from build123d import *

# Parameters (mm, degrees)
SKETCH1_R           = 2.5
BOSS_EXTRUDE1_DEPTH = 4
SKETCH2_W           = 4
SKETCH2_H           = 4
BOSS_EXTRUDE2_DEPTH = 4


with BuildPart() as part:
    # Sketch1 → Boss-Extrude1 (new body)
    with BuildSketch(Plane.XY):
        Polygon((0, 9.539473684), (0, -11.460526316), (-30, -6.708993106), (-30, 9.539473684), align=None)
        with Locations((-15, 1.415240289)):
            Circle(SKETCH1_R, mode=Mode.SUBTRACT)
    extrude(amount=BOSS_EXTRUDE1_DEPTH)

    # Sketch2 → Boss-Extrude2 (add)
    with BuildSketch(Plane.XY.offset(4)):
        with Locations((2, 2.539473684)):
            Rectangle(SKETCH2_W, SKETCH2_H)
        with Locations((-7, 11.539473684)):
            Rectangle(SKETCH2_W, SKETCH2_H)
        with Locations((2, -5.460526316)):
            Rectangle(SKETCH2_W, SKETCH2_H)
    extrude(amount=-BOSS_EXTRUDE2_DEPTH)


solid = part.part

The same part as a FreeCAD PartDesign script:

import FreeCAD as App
import Part
import Sketcher
from FreeCAD import Vector
Q = App.Units.Quantity

doc = App.newDocument("Part")
body = doc.addObject("PartDesign::Body", "Body")

sketch1 = body.newObject("Sketcher::SketchObject", "Sketch")
sketch1.AttachmentSupport = (doc.getObject("XY_Plane"), [""])
sketch1.MapMode = "FlatFace"
sketch1.addGeometry([
    Part.LineSegment(Vector(0, -11.5, 0), Vector(0, 9.5, 0)),
    Part.LineSegment(Vector(0, 9.5, 0), Vector(-30, 9.5, 0)),
    Part.LineSegment(Vector(-30, 9.5, 0), Vector(-30, -6.7, 0)),
    Part.LineSegment(Vector(-30, -6.7, 0), Vector(0, -11.5, 0)),
    Part.Circle(Vector(-15, 1.4, 0), Vector(0, 0, 1), 2.5),
], False)
sketch1.addConstraint([
    Sketcher.Constraint("Coincident", 0, 2, 1, 1),
    Sketcher.Constraint("Coincident", 1, 2, 2, 1),
    Sketcher.Constraint("Coincident", 2, 2, 3, 1),
    Sketcher.Constraint("Coincident", 3, 2, 0, 1),
    Sketcher.Constraint("Vertical", 0),
    Sketcher.Constraint("Horizontal", 1),
    Sketcher.Constraint("Vertical", 2),
    Sketcher.Constraint("PointOnObject", 0, 2, -2),
    Sketcher.Constraint("Diameter", 4, 5.0),
    Sketcher.Constraint("DistanceX", 1, 2, 1, 1, 30.0),
    Sketcher.Constraint("DistanceY", 0, 1, 0, 2, 21.0),
    Sketcher.Constraint("Angle", 3, Q("-9 deg")),
    Sketcher.Constraint("DistanceX", 4, 3, -1, 1, 15.0),
    Sketcher.Constraint("DistanceY", -1, 1, 4, 3, 1.41524),
    Sketcher.Constraint("DistanceY", -1, 1, 0, 2, 9.539474),
])
pad1 = body.newObject("PartDesign::Pad", "Pad")
pad1.Profile = sketch1
pad1.Length = 4

sketch2 = body.newObject("Sketcher::SketchObject", "Sketch001")
sketch2.AttachmentSupport = (doc.getObject("XY_Plane"), [""])
sketch2.MapMode = "FlatFace"
sketch2.AttachmentOffset = App.Placement(Vector(0, 0, 4), App.Rotation())
sketch2.addGeometry([
    Part.LineSegment(Vector(0, 4.5, 0), Vector(0, 0.5, 0)),
    Part.LineSegment(Vector(0, 0.5, 0), Vector(4, 0.5, 0)),
    Part.LineSegment(Vector(4, 0.5, 0), Vector(4, 4.5, 0)),
    Part.LineSegment(Vector(4, 4.5, 0), Vector(0, 4.5, 0)),
    Part.LineSegment(Vector(-9, 13.5, 0), Vector(-9, 9.5, 0)),
    Part.LineSegment(Vector(-9, 9.5, 0), Vector(-5, 9.5, 0)),
    Part.LineSegment(Vector(-5, 9.5, 0), Vector(-5, 13.5, 0)),
    Part.LineSegment(Vector(-5, 13.5, 0), Vector(-9, 13.5, 0)),
    Part.LineSegment(Vector(0, -3.5, 0), Vector(0, -7.5, 0)),
    Part.LineSegment(Vector(0, -7.5, 0), Vector(4, -7.5, 0)),
    Part.LineSegment(Vector(4, -7.5, 0), Vector(4, -3.5, 0)),
    Part.LineSegment(Vector(4, -3.5, 0), Vector(0, -3.5, 0)),
], False)
sketch2.addConstraint([
    Sketcher.Constraint("Coincident", 0, 2, 1, 1),
    Sketcher.Constraint("Coincident", 1, 2, 2, 1),
    Sketcher.Constraint("Coincident", 2, 2, 3, 1),
    Sketcher.Constraint("Coincident", 3, 2, 0, 1),
    Sketcher.Constraint("Coincident", 4, 2, 5, 1),
    Sketcher.Constraint("Coincident", 5, 2, 6, 1),
    Sketcher.Constraint("Coincident", 6, 2, 7, 1),
    Sketcher.Constraint("Coincident", 7, 2, 4, 1),
    Sketcher.Constraint("Coincident", 8, 2, 9, 1),
    Sketcher.Constraint("Coincident", 9, 2, 10, 1),
    Sketcher.Constraint("Coincident", 10, 2, 11, 1),
    Sketcher.Constraint("Coincident", 11, 2, 8, 1),
    Sketcher.Constraint("Vertical", 0),
    Sketcher.Constraint("Horizontal", 1),
    Sketcher.Constraint("Vertical", 2),
    Sketcher.Constraint("Horizontal", 3),
    Sketcher.Constraint("Vertical", 4),
    Sketcher.Constraint("Horizontal", 5),
    Sketcher.Constraint("Vertical", 6),
    Sketcher.Constraint("Horizontal", 7),
    Sketcher.Constraint("Vertical", 8),
    Sketcher.Constraint("Horizontal", 9),
    Sketcher.Constraint("Vertical", 10),
    Sketcher.Constraint("Horizontal", 11),
    Sketcher.Constraint("PointOnObject", 0, 2, -2),
    Sketcher.Constraint("PointOnObject", 8, 2, -2),
    Sketcher.Constraint("Vertical", 2, 2, 9, 2),
    Sketcher.Constraint("Equal", 3, 5),
    Sketcher.Constraint("Equal", 11, 0),
    Sketcher.Constraint("Equal", 2, 4),
    Sketcher.Constraint("Equal", 6, 8),
    Sketcher.Constraint("DistanceX", 1, 1, 1, 2, 4.0),
    Sketcher.Constraint("DistanceX", 4, 2, -1, 1, 9.0),
    Sketcher.Constraint("DistanceY", 3, 2, 4, 2, 5.0),
    Sketcher.Constraint("DistanceY", 8, 2, 0, 2, 8.0),
    Sketcher.Constraint("DistanceY", -1, 1, 0, 2, 0.539474),
])
pad2 = body.newObject("PartDesign::Pad", "Pad001")
pad2.Profile = sketch2
pad2.Length = 4
pad2.Reversed = True

doc.recompute()
